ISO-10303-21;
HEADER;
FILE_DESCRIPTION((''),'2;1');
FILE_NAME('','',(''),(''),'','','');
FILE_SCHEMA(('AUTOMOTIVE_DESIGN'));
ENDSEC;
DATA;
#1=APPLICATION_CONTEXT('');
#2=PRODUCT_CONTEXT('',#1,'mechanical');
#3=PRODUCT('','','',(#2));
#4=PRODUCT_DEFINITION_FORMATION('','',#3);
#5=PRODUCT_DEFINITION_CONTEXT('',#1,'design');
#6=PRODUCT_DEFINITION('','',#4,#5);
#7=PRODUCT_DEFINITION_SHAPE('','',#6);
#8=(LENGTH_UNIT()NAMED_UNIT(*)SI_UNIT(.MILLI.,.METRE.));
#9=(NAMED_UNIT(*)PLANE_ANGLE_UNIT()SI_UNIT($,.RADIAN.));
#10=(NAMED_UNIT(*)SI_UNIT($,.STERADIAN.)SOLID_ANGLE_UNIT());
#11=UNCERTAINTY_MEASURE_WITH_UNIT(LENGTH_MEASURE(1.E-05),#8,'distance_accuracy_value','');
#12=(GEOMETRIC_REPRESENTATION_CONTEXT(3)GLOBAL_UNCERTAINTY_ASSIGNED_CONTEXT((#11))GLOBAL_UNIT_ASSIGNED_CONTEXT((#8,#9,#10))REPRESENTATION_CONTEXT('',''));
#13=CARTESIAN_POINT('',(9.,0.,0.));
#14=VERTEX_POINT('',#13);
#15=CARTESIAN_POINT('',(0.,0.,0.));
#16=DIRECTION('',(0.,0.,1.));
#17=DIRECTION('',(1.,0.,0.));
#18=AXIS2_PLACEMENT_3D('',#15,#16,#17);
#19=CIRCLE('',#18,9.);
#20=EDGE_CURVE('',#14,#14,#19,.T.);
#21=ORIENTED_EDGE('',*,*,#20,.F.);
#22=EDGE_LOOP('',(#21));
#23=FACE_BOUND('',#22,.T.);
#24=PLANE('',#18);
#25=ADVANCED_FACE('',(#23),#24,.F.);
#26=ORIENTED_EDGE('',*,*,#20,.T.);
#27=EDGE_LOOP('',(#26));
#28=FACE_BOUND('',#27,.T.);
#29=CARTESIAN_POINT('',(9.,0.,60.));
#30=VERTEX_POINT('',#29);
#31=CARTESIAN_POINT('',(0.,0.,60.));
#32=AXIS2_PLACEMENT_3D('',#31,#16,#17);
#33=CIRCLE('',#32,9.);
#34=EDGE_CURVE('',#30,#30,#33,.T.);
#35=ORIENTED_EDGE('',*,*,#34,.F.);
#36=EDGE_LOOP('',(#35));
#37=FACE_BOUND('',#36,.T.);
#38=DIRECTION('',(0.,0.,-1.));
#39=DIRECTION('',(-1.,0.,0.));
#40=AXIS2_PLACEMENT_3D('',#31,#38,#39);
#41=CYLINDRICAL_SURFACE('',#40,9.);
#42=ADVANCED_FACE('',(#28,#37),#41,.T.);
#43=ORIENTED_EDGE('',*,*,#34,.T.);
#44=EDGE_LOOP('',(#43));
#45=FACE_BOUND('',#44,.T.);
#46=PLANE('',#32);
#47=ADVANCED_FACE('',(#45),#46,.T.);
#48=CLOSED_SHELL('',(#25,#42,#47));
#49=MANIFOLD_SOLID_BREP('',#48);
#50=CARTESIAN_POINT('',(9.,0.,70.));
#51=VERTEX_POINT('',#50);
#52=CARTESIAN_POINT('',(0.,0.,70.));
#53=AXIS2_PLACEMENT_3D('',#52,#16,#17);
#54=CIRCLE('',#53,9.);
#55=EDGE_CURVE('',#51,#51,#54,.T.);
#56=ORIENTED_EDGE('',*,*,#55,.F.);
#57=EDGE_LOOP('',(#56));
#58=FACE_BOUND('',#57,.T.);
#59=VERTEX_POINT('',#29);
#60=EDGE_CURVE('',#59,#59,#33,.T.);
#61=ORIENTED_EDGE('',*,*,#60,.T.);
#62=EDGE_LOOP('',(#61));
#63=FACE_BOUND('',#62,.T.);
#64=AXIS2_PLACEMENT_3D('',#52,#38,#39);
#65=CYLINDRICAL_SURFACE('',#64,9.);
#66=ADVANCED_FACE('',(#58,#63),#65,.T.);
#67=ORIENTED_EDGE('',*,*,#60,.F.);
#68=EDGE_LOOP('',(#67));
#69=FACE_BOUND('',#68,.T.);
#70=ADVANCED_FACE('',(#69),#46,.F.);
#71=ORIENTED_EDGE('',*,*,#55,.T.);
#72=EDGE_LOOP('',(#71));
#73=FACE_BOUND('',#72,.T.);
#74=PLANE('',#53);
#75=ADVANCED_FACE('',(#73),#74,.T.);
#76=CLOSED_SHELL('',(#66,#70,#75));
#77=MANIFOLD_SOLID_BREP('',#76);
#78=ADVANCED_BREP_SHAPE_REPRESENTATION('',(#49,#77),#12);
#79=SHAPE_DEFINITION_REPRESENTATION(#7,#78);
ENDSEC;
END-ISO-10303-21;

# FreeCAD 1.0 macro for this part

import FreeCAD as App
import Part
import Sketcher

doc = App.newDocument("Part")
body = doc.addObject("PartDesign::Body", "Body")

# Sketch on XY plane
sketch1 = body.newObject("Sketcher::SketchObject", "Sketch")
sketch1.AttachmentSupport = (doc.getObject("XY_Plane"), [""])
sketch1.MapMode = "FlatFace"
sketch1.addGeometry(Part.Circle(App.Vector(0, 0, 0), App.Vector(0, 0, 1), 9), False)
sketch1.addConstraint([
    Sketcher.Constraint("Coincident", 0, 3, -1, 1),
    Sketcher.Constraint("Diameter", 0, 18.0),
])
pad1 = body.newObject("PartDesign::Pad", "Pad")
pad1.Profile = sketch1
pad1.Length = 60
body2 = doc.addObject("PartDesign::Body", "Body001")

# Sketch on XY plane
sketch2 = body2.newObject("Sketcher::SketchObject", "Sketch001")
sketch2.AttachmentSupport = (doc.getObject("XY_Plane001"), [""])
sketch2.MapMode = "FlatFace"
sketch2.AttachmentOffset = App.Placement(App.Vector(0, 0, 60), App.Rotation())
sketch2.addGeometry(Part.Circle(App.Vector(0, 0, 0), App.Vector(0, 0, 1), 9), False)
sketch2.addConstraint([
    Sketcher.Constraint("Coincident", 0, 3, -1, 1),
    Sketcher.Constraint("Diameter", 0, 18.0),
])
pad2 = body2.newObject("PartDesign::Pad", "Pad001")
pad2.Profile = sketch2
pad2.Length = 10

doc.recompute()
